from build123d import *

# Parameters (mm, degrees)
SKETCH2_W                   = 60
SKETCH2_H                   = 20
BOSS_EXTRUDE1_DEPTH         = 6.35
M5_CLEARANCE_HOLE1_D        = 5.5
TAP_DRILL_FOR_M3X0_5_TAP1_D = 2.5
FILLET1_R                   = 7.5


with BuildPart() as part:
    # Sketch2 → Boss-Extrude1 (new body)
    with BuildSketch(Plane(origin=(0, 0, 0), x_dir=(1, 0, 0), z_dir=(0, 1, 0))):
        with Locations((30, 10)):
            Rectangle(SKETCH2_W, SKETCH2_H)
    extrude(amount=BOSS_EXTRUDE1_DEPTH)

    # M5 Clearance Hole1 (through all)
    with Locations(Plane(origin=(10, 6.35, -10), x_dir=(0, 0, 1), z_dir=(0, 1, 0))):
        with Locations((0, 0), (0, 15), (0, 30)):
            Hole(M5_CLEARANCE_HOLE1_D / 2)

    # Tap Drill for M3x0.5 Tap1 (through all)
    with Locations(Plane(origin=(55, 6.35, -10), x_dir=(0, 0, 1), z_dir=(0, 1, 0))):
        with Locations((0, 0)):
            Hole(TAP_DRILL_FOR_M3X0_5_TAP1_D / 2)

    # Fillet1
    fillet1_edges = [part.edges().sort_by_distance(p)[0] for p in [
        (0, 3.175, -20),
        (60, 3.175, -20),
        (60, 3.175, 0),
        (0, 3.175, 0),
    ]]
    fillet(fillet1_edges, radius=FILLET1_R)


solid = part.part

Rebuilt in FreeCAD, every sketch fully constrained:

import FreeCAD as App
import Part
import Sketcher


def edges_at(feature, points):
    """Names of the edges that pass closest to the given points."""
    edges = feature.Shape.Edges
    near = lambda p: min(range(len(edges)), key=lambda i: edges[i].distToShape(Part.Vertex(*p))[0])
    return sorted({f"Edge{near(p) + 1}" for p in points})


def add_polygon(sketch, points):
    """Adds a closed chain of lines whose ends are joined by coincident constraints."""
    first, n = sketch.GeometryCount, len(points)
    for a, b in zip(points, points[1:] + points[:1]):
        sketch.addGeometry(Part.LineSegment(App.Vector(*a, 0), App.Vector(*b, 0)), False)
    for i in range(n):
        sketch.addConstraint(Sketcher.Constraint("Coincident", first + i, 2, first + (i + 1) % n, 1))

doc = App.newDocument("Part")
body = doc.addObject("PartDesign::Body", "Body")

# Sketch on XZ plane
sketch1 = body.newObject("Sketcher::SketchObject", "Sketch")
sketch1.AttachmentSupport = (doc.getObject("XZ_Plane"), [""])
sketch1.MapMode = "FlatFace"
add_polygon(sketch1, [(0, -20), (0, 0), (60, 0), (60, -20)])  # lines 0-3
sketch1.addConstraint([
    Sketcher.Constraint("Vertical", 0),
    Sketcher.Constraint("Horizontal", 1),
    Sketcher.Constraint("Vertical", 2),
    Sketcher.Constraint("Horizontal", 3),
    Sketcher.Constraint("Coincident", 0, 2, -1, 1),
    Sketcher.Constraint("DistanceX", 1, 1, 1, 2, 60.0),
    Sketcher.Constraint("DistanceY", 0, 1, 0, 2, 20.0),
])
pad1 = body.newObject("PartDesign::Pad", "Pad")
pad1.Profile = sketch1
pad1.Length = 6.35
pad1.Reversed = True

# Sketch on XZ plane
sketch2 = body.newObject("Sketcher::SketchObject", "Sketch001")
sketch2.AttachmentSupport = (doc.getObject("XZ_Plane"), [""])
sketch2.MapMode = "FlatFace"
sketch2.AttachmentOffset = App.Placement(App.Vector(0, 0, -6.35), App.Rotation())
sketch2.addGeometry([
    Part.Circle(App.Vector(10, -10, 0), App.Vector(0, 0, 1), 2.8),
    Part.Circle(App.Vector(25, -10, 0), App.Vector(0, 0, 1), 2.8),
    Part.Circle(App.Vector(40, -10, 0), App.Vector(0, 0, 1), 2.8),
], False)
sketch2.addConstraint([
    Sketcher.Constraint("Equal", 0, 1),
    Sketcher.Constraint("Equal", 1, 2),
    Sketcher.Constraint("Horizontal", 0, 3, 1, 3),
    Sketcher.Constraint("Horizontal", 1, 3, 2, 3),
    Sketcher.Constraint("Diameter", 0, 5.5),
    Sketcher.Constraint("DistanceX", -1, 1, 0, 3, 10.0),
    Sketcher.Constraint("DistanceY", 0, 3, -1, 1, 10.0),
    Sketcher.Constraint("DistanceX", -1, 1, 1, 3, 25.0),
    Sketcher.Constraint("DistanceX", -1, 1, 2, 3, 40.0),
])
doc.recompute()
hole = body.newObject("PartDesign::Hole", "Hole")
hole.Profile = sketch2
hole.ThreadType = "None"
hole.Diameter = 5.5
hole.DepthType = "ThroughAll"
hole.Reversed = True

# Sketch on XZ plane
sketch3 = body.newObject("Sketcher::SketchObject", "Sketch002")
sketch3.AttachmentSupport = (doc.getObject("XZ_Plane"), [""])
sketch3.MapMode = "FlatFace"
sketch3.AttachmentOffset = App.Placement(App.Vector(0, 0, -6.35), App.Rotation())
sketch3.addGeometry(Part.Circle(App.Vector(55, -10, 0), App.Vector(0, 0, 1), 1.2), False)
sketch3.addConstraint([
    Sketcher.Constraint("Diameter", 0, 2.5),
    Sketcher.Constraint("DistanceX", -1, 1, 0, 3, 55.0),
    Sketcher.Constraint("DistanceY", 0, 3, -1, 1, 10.0),
])
doc.recompute()
hole2 = body.newObject("PartDesign::Hole", "Hole001")
hole2.Profile = sketch3
hole2.ThreadType = "None"
hole2.Diameter = 2.5
hole2.DepthType = "ThroughAll"
hole2.Reversed = True
doc.recompute()

fillet = body.newObject("PartDesign::Fillet", "Fillet")
fillet.Base = (hole2, edges_at(hole2, [
    (0, 3.175, -20),
    (60, 3.175, -20),
    (60, 3.175, 0),
    (0, 3.175, 0),
]))
fillet.Radius = 7.5

doc.recompute()
